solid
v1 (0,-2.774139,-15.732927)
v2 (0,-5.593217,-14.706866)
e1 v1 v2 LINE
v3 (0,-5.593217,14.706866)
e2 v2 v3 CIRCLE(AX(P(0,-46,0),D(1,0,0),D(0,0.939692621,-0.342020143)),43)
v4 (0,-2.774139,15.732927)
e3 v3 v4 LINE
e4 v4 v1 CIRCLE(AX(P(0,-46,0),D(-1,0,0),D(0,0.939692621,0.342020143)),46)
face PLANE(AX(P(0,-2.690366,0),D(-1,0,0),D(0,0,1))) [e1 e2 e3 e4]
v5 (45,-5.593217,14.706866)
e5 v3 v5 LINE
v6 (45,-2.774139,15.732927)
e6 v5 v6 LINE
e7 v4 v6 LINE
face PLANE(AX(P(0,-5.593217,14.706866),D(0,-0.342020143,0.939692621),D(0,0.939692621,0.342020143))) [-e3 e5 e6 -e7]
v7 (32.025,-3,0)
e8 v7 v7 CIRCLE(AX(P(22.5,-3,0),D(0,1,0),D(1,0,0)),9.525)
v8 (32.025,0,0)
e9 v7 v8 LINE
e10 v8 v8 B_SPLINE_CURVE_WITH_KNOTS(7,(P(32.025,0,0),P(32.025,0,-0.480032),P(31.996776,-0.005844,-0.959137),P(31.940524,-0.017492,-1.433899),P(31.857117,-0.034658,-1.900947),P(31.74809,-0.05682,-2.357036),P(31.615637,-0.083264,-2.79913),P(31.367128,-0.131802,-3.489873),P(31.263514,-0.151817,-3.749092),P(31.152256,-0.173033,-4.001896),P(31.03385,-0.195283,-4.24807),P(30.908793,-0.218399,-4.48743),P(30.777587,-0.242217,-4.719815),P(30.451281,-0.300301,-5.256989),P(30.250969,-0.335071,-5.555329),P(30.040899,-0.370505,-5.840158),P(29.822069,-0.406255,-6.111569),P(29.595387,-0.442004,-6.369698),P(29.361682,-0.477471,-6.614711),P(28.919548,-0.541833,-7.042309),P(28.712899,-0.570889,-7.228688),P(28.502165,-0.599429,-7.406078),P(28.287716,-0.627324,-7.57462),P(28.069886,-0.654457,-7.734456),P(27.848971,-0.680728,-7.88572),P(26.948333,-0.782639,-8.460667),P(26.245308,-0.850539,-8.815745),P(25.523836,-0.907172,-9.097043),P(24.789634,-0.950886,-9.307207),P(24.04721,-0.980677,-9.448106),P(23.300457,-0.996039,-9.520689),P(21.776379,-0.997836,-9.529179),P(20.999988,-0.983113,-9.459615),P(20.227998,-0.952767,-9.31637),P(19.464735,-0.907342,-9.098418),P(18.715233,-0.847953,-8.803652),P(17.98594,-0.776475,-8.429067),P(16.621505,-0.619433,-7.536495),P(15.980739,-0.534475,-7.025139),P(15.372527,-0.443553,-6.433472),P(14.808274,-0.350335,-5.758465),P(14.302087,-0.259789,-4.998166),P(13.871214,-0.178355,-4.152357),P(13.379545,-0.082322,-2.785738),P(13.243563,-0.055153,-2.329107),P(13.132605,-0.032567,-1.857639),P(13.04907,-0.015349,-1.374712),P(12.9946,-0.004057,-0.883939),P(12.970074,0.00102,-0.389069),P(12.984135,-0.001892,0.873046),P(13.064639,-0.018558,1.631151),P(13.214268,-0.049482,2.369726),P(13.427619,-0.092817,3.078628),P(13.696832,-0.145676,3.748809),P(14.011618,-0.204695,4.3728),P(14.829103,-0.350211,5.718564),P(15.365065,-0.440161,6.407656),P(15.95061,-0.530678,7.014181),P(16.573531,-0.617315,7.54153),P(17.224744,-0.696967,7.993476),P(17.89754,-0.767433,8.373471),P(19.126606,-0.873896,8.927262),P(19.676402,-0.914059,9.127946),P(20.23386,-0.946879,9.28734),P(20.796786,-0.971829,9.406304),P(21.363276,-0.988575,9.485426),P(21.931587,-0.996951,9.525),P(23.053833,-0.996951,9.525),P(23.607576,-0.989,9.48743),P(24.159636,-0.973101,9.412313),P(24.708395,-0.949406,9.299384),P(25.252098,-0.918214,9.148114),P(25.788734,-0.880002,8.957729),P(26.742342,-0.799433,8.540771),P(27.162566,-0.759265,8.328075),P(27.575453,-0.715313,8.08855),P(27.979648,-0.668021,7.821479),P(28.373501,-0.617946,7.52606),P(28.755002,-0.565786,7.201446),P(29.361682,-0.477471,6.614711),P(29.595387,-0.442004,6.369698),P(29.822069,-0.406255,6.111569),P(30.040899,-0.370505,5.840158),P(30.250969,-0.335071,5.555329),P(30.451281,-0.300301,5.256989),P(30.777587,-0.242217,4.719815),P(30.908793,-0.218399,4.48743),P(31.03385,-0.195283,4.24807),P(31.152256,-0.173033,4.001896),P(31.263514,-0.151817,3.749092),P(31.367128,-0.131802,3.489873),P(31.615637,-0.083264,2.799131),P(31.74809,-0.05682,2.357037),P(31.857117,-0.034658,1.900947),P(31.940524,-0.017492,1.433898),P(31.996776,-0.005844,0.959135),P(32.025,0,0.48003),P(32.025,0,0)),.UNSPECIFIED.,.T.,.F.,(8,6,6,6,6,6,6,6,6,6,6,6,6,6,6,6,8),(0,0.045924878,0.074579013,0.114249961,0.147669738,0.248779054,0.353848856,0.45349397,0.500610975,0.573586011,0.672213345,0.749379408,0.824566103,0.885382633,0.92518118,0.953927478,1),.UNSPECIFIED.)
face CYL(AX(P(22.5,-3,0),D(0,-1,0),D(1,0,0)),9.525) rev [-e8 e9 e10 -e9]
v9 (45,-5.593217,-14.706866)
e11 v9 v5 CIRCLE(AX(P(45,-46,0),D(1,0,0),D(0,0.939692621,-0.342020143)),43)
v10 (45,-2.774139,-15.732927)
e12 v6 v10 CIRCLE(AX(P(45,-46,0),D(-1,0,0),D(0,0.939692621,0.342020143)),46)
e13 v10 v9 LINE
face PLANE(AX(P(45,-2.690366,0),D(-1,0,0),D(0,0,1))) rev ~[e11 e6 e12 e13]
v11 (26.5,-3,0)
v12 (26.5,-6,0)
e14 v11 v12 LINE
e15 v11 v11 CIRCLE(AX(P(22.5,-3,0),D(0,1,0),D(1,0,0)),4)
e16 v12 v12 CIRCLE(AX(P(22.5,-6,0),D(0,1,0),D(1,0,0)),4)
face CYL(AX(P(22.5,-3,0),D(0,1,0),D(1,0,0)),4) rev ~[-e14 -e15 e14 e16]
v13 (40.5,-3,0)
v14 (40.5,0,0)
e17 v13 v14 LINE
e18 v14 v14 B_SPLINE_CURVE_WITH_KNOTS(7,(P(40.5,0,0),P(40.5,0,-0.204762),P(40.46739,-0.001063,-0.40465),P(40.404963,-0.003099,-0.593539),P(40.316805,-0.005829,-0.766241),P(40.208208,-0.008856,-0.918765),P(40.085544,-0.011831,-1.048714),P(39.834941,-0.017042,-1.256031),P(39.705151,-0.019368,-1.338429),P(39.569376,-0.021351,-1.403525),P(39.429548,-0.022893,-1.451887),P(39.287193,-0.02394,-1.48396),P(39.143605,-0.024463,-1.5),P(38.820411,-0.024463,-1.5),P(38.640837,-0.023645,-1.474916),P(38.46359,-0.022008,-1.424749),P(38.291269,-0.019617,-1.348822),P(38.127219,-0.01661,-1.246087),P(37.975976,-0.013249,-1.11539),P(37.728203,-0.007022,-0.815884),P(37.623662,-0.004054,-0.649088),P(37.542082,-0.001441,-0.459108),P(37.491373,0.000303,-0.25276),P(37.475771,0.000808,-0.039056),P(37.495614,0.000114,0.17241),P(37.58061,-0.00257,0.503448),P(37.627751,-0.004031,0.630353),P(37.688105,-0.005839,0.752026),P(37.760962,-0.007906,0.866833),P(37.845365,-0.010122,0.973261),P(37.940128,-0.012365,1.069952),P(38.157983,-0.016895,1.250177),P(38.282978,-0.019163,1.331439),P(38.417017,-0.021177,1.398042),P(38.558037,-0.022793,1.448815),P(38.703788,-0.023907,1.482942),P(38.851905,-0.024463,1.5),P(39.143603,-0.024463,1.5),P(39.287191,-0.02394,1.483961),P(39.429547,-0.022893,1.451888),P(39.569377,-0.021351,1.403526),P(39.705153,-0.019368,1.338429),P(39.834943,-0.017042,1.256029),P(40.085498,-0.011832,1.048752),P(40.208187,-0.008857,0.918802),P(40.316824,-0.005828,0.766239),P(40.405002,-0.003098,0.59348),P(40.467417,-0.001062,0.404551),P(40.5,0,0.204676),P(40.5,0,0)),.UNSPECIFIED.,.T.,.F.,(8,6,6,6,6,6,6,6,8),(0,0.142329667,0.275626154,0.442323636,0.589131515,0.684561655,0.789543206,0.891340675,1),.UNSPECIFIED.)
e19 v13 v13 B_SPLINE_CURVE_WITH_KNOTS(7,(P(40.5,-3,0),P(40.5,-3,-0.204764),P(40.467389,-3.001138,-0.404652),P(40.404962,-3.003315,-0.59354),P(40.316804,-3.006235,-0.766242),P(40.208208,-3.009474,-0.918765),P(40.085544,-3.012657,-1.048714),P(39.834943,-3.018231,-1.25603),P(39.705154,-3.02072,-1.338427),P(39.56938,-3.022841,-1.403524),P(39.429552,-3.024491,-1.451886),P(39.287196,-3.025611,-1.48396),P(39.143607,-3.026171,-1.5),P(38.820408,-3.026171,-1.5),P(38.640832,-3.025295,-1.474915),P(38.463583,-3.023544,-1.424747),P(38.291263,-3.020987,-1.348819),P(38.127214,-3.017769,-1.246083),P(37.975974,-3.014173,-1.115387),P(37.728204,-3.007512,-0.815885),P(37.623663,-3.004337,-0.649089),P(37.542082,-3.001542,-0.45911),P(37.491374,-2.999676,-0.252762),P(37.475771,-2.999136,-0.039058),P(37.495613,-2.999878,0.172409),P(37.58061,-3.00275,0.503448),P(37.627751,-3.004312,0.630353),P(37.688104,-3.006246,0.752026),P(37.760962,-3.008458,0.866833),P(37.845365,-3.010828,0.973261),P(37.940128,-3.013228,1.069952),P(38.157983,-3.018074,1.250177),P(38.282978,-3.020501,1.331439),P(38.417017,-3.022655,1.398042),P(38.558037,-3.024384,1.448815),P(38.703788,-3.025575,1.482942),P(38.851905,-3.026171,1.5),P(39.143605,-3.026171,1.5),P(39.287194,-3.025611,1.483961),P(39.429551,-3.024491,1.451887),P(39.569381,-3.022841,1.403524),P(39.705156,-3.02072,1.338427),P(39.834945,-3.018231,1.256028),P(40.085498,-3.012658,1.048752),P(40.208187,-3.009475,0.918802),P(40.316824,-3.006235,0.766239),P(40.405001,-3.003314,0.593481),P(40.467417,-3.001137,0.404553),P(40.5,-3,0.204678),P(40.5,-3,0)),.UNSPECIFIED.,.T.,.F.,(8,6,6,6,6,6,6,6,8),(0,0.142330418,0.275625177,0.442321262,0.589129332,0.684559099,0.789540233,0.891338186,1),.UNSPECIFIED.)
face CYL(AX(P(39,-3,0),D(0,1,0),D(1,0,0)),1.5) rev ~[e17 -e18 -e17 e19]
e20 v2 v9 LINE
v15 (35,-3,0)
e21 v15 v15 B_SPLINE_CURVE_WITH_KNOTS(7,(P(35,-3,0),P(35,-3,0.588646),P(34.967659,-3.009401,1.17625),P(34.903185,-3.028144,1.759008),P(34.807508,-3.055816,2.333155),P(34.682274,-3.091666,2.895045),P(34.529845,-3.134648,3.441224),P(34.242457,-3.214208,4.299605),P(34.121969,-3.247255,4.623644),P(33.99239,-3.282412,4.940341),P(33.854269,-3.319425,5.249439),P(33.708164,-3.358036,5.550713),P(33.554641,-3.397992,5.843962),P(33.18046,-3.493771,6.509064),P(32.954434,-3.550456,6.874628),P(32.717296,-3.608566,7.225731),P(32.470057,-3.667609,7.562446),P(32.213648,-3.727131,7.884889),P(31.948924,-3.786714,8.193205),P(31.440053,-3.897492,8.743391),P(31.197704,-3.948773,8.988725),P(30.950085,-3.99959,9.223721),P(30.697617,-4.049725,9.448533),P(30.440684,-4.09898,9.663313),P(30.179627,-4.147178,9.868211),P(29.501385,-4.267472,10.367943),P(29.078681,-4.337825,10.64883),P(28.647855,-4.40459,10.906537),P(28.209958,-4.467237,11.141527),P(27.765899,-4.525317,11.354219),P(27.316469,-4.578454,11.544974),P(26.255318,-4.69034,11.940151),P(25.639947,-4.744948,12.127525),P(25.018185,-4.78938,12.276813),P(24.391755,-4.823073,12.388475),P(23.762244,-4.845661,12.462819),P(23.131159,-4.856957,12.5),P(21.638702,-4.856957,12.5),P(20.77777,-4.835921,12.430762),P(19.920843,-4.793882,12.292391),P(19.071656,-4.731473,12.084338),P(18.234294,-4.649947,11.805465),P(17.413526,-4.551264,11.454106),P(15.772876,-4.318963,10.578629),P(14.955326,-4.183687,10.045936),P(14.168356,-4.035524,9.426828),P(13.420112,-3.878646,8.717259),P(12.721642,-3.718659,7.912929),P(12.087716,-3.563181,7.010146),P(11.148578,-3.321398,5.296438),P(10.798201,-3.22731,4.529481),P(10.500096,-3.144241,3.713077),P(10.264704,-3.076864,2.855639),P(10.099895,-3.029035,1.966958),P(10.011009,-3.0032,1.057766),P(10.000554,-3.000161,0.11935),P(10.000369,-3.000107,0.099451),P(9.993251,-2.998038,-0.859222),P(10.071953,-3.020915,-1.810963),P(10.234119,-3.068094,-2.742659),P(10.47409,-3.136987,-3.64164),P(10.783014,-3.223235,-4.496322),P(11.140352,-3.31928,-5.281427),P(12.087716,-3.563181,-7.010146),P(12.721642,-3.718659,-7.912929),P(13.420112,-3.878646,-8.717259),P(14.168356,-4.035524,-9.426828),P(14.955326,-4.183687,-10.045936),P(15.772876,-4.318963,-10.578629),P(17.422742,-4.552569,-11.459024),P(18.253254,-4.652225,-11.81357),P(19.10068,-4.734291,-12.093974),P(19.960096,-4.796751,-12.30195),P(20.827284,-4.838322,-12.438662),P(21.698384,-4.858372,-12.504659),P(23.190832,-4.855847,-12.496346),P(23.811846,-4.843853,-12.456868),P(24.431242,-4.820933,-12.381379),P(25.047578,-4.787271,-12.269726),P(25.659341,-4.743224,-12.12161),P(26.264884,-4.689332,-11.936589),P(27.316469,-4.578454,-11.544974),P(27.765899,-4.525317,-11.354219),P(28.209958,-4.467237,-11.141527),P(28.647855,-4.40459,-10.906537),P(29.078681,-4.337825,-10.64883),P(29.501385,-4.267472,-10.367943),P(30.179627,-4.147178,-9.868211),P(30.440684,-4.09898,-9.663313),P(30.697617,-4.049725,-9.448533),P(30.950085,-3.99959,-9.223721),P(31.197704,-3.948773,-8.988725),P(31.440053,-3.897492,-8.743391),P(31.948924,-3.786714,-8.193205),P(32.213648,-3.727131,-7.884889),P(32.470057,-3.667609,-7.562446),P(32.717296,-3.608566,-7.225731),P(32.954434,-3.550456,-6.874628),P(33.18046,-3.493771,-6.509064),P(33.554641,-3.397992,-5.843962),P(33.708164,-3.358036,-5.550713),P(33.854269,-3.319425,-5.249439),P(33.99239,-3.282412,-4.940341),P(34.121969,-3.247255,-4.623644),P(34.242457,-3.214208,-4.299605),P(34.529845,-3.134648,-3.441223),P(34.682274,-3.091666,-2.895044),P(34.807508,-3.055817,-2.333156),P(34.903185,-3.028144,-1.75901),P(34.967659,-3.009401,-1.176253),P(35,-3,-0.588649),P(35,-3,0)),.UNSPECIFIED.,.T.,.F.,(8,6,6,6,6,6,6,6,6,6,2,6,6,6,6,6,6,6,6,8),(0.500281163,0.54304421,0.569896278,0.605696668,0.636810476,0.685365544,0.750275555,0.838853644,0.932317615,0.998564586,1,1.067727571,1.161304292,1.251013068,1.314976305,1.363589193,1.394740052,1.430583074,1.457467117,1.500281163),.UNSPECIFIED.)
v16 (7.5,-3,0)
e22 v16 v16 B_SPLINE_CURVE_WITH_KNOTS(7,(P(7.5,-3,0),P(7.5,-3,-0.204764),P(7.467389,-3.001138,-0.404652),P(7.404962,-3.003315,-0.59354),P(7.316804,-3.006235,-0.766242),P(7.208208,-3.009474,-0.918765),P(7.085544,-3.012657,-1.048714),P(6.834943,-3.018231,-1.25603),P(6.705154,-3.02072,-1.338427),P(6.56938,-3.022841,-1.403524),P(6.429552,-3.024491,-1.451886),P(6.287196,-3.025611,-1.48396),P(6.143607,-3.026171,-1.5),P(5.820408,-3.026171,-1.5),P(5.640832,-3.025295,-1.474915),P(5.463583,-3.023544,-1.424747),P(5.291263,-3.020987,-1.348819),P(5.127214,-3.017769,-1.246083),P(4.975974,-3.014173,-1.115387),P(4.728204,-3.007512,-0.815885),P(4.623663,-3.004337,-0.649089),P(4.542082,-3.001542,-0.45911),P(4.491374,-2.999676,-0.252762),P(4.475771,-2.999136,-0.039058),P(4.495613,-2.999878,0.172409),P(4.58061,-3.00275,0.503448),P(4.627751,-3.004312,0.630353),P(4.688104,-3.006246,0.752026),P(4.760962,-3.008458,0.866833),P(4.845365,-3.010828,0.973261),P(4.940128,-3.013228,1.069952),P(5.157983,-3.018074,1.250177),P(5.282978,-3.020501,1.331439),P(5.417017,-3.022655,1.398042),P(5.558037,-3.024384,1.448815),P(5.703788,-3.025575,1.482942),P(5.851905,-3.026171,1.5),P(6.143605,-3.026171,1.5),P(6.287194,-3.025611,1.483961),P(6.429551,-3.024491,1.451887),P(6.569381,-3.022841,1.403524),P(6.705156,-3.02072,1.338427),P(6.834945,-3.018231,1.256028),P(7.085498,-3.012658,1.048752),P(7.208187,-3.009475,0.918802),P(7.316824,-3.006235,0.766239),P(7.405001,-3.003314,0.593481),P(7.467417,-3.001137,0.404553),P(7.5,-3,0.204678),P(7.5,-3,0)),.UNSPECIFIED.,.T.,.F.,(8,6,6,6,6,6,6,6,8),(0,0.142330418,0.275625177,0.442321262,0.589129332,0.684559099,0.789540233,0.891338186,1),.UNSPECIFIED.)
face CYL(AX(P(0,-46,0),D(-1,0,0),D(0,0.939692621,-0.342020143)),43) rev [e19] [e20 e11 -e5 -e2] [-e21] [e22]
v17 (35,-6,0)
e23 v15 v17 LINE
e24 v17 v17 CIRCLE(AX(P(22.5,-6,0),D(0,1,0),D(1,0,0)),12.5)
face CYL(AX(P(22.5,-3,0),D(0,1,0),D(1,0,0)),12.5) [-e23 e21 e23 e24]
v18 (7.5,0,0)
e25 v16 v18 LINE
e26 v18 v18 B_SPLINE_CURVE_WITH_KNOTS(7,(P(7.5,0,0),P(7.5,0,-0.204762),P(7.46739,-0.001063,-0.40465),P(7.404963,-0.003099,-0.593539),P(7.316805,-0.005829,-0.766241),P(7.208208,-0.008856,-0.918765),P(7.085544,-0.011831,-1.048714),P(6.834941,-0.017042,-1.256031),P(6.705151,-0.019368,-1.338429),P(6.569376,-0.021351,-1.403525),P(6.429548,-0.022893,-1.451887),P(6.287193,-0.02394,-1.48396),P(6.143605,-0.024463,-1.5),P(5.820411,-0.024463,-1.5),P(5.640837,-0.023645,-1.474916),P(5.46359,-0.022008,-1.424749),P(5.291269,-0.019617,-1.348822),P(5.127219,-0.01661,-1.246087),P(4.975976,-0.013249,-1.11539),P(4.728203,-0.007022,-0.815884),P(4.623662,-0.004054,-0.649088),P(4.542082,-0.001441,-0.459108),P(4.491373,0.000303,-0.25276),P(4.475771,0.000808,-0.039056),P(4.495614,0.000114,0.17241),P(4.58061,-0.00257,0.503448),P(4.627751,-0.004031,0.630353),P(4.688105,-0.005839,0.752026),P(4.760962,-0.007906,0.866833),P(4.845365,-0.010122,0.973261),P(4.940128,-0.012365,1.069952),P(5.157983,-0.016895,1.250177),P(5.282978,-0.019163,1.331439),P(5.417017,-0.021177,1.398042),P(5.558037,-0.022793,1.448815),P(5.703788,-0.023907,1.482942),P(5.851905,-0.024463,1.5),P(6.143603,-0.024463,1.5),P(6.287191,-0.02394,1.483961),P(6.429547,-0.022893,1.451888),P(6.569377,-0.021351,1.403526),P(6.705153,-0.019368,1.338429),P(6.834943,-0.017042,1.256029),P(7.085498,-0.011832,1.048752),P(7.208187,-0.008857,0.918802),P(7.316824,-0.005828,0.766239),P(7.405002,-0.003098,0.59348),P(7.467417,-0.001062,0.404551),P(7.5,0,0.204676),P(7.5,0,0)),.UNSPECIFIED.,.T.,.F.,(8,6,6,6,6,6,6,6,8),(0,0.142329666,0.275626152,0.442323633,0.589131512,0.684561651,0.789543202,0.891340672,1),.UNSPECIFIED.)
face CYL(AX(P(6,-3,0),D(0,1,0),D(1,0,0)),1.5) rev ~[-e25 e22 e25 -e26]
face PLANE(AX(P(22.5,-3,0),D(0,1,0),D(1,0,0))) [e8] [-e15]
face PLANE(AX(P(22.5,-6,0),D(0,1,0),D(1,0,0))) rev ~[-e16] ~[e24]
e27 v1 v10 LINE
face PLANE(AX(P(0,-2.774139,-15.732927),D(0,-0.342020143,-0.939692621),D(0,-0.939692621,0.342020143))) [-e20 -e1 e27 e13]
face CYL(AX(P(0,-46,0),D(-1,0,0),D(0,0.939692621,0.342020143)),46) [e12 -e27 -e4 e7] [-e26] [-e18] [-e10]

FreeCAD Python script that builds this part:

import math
import FreeCAD as App
import Part
import Sketcher

V = App.Vector
Q = App.Units.Quantity

doc = App.newDocument("Part")
body = doc.addObject("PartDesign::Body", "Body")

# Sketch on YZ plane
sketch1 = doc.addObject("Sketcher::SketchObject", "Sketch")
body.addObject(sketch1)
sketch1.AttachmentSupport = (doc.YZ_Plane, [""])
sketch1.MapMode = "FlatFace"
sketch1.addGeometry(Part.LineSegment(V(-2.774139, 15.732927, 0), V(-5.593217, 14.706866, 0)), False)
sketch1.addGeometry(Part.ArcOfCircle(Part.Circle(V(-46, 0, 0), V(0, 0, 1), 43), math.radians(-20), math.radians(20)), False)
sketch1.addGeometry(Part.LineSegment(V(-5.593217, -14.706866, 0), V(-2.774139, -15.732927, 0)), False)
sketch1.addGeometry(Part.ArcOfCircle(Part.Circle(V(-46, 0, 0), V(0, 0, 1), 46), math.radians(-20), math.radians(20)), False)
sketch1.addConstraint(Sketcher.Constraint("Coincident", 0, 2, 1, 2))
sketch1.addConstraint(Sketcher.Constraint("Coincident", 1, 1, 2, 1))
sketch1.addConstraint(Sketcher.Constraint("Coincident", 2, 2, 3, 1))
sketch1.addConstraint(Sketcher.Constraint("Coincident", 3, 2, 0, 1))
sketch1.addConstraint(Sketcher.Constraint("Coincident", 3, 3, 1, 3))
sketch1.addConstraint(Sketcher.Constraint("Symmetric", 0, 2, 1, 1, -1))
sketch1.addConstraint(Sketcher.Constraint("Vertical", 2, 2, 3, 2))
sketch1.addConstraint(Sketcher.Constraint("Radius", 1, 43.0))
sketch1.addConstraint(Sketcher.Constraint("Radius", 3, 46.0))
sketch1.addConstraint(Sketcher.Constraint("Angle", 0, Q("-160 deg")))
sketch1.addConstraint(Sketcher.Constraint("DistanceX", 1, 3, -1, 1, 46.0))
sketch1.addConstraint(Sketcher.Constraint("DistanceX", 2, 2, -1, 1, 2.774139))
pad1 = doc.addObject("PartDesign::Pad", "Pad")
body.addObject(pad1)
pad1.Profile = sketch1
pad1.Length = 45

# Sketch on XZ plane
sketch2 = doc.addObject("Sketcher::SketchObject", "Sketch001")
body.addObject(sketch2)
sketch2.AttachmentSupport = (doc.XZ_Plane, [""])
sketch2.MapMode = "FlatFace"
sketch2.AttachmentOffset = App.Placement(V(0, 0, 3), App.Rotation())
sketch2.addGeometry(Part.Circle(V(22.5, 0, 0), V(0, 0, 1), 12.5), False)
sketch2.addConstraint(Sketcher.Constraint("PointOnObject", 0, 3, -1))
sketch2.addConstraint(Sketcher.Constraint("Diameter", 0, 25.0))
sketch2.addConstraint(Sketcher.Constraint("DistanceX", -1, 1, 0, 3, 22.5))
pad2 = doc.addObject("PartDesign::Pad", "Pad001")
body.addObject(pad2)
pad2.Profile = sketch2
pad2.Length = 3

# Sketch on XZ plane
sketch3 = doc.addObject("Sketcher::SketchObject", "Sketch002")
body.addObject(sketch3)
sketch3.AttachmentSupport = (doc.XZ_Plane, [""])
sketch3.MapMode = "FlatFace"
sketch3.AttachmentOffset = App.Placement(V(0, 0, 3), App.Rotation())
sketch3.addGeometry(Part.Circle(V(22.5, 0, 0), V(0, 0, 1), 9.525), False)
sketch3.addConstraint(Sketcher.Constraint("PointOnObject", 0, 3, -1))
sketch3.addConstraint(Sketcher.Constraint("Diameter", 0, 19.05))
sketch3.addConstraint(Sketcher.Constraint("DistanceX", -1, 1, 0, 3, 22.5))
pocket1 = doc.addObject("PartDesign::Pocket", "Pocket")
body.addObject(pocket1)
pocket1.Profile = sketch3
pocket1.Length = 14

# Sketch on XZ plane
sketch4 = doc.addObject("Sketcher::SketchObject", "Sketch003")
body.addObject(sketch4)
sketch4.AttachmentSupport = (doc.XZ_Plane, [""])
sketch4.MapMode = "FlatFace"
sketch4.AttachmentOffset = App.Placement(V(0, 0, 3), App.Rotation())
sketch4.addGeometry(Part.Circle(V(22.5, 0, 0), V(0, 0, 1), 4), False)
sketch4.addConstraint(Sketcher.Constraint("PointOnObject", 0, 3, -1))
sketch4.addConstraint(Sketcher.Constraint("Diameter", 0, 8.0))
sketch4.addConstraint(Sketcher.Constraint("DistanceX", -1, 1, 0, 3, 22.5))
pocket2 = doc.addObject("PartDesign::Pocket", "Pocket001")
body.addObject(pocket2)
pocket2.Profile = sketch4
pocket2.Length = 14
pocket2.Reversed = True

# Sketch on XZ plane
sketch5 = doc.addObject("Sketcher::SketchObject", "Sketch004")
body.addObject(sketch5)
sketch5.AttachmentSupport = (doc.XZ_Plane, [""])
sketch5.MapMode = "FlatFace"
sketch5.AttachmentOffset = App.Placement(V(0, 0, 3), App.Rotation())
sketch5.addGeometry(Part.Circle(V(6, 0, 0), V(0, 0, 1), 1.5), False)
sketch5.addGeometry(Part.Circle(V(39, 0, 0), V(0, 0, 1), 1.5), False)
sketch5.addConstraint(Sketcher.Constraint("Equal", 0, 1))
sketch5.addConstraint(Sketcher.Constraint("PointOnObject", 0, 3, -1))
sketch5.addConstraint(Sketcher.Constraint("PointOnObject", 1, 3, -1))
sketch5.addConstraint(Sketcher.Constraint("Diameter", 0, 3.0))
sketch5.addConstraint(Sketcher.Constraint("DistanceX", -1, 1, 0, 3, 6.0))
sketch5.addConstraint(Sketcher.Constraint("DistanceX", -1, 1, 1, 3, 39.0))
pocket3 = doc.addObject("PartDesign::Pocket", "Pocket002")
body.addObject(pocket3)
pocket3.Profile = sketch5
pocket3.Type = "ThroughAll"
pocket3.Midplane = True

doc.recompute()
